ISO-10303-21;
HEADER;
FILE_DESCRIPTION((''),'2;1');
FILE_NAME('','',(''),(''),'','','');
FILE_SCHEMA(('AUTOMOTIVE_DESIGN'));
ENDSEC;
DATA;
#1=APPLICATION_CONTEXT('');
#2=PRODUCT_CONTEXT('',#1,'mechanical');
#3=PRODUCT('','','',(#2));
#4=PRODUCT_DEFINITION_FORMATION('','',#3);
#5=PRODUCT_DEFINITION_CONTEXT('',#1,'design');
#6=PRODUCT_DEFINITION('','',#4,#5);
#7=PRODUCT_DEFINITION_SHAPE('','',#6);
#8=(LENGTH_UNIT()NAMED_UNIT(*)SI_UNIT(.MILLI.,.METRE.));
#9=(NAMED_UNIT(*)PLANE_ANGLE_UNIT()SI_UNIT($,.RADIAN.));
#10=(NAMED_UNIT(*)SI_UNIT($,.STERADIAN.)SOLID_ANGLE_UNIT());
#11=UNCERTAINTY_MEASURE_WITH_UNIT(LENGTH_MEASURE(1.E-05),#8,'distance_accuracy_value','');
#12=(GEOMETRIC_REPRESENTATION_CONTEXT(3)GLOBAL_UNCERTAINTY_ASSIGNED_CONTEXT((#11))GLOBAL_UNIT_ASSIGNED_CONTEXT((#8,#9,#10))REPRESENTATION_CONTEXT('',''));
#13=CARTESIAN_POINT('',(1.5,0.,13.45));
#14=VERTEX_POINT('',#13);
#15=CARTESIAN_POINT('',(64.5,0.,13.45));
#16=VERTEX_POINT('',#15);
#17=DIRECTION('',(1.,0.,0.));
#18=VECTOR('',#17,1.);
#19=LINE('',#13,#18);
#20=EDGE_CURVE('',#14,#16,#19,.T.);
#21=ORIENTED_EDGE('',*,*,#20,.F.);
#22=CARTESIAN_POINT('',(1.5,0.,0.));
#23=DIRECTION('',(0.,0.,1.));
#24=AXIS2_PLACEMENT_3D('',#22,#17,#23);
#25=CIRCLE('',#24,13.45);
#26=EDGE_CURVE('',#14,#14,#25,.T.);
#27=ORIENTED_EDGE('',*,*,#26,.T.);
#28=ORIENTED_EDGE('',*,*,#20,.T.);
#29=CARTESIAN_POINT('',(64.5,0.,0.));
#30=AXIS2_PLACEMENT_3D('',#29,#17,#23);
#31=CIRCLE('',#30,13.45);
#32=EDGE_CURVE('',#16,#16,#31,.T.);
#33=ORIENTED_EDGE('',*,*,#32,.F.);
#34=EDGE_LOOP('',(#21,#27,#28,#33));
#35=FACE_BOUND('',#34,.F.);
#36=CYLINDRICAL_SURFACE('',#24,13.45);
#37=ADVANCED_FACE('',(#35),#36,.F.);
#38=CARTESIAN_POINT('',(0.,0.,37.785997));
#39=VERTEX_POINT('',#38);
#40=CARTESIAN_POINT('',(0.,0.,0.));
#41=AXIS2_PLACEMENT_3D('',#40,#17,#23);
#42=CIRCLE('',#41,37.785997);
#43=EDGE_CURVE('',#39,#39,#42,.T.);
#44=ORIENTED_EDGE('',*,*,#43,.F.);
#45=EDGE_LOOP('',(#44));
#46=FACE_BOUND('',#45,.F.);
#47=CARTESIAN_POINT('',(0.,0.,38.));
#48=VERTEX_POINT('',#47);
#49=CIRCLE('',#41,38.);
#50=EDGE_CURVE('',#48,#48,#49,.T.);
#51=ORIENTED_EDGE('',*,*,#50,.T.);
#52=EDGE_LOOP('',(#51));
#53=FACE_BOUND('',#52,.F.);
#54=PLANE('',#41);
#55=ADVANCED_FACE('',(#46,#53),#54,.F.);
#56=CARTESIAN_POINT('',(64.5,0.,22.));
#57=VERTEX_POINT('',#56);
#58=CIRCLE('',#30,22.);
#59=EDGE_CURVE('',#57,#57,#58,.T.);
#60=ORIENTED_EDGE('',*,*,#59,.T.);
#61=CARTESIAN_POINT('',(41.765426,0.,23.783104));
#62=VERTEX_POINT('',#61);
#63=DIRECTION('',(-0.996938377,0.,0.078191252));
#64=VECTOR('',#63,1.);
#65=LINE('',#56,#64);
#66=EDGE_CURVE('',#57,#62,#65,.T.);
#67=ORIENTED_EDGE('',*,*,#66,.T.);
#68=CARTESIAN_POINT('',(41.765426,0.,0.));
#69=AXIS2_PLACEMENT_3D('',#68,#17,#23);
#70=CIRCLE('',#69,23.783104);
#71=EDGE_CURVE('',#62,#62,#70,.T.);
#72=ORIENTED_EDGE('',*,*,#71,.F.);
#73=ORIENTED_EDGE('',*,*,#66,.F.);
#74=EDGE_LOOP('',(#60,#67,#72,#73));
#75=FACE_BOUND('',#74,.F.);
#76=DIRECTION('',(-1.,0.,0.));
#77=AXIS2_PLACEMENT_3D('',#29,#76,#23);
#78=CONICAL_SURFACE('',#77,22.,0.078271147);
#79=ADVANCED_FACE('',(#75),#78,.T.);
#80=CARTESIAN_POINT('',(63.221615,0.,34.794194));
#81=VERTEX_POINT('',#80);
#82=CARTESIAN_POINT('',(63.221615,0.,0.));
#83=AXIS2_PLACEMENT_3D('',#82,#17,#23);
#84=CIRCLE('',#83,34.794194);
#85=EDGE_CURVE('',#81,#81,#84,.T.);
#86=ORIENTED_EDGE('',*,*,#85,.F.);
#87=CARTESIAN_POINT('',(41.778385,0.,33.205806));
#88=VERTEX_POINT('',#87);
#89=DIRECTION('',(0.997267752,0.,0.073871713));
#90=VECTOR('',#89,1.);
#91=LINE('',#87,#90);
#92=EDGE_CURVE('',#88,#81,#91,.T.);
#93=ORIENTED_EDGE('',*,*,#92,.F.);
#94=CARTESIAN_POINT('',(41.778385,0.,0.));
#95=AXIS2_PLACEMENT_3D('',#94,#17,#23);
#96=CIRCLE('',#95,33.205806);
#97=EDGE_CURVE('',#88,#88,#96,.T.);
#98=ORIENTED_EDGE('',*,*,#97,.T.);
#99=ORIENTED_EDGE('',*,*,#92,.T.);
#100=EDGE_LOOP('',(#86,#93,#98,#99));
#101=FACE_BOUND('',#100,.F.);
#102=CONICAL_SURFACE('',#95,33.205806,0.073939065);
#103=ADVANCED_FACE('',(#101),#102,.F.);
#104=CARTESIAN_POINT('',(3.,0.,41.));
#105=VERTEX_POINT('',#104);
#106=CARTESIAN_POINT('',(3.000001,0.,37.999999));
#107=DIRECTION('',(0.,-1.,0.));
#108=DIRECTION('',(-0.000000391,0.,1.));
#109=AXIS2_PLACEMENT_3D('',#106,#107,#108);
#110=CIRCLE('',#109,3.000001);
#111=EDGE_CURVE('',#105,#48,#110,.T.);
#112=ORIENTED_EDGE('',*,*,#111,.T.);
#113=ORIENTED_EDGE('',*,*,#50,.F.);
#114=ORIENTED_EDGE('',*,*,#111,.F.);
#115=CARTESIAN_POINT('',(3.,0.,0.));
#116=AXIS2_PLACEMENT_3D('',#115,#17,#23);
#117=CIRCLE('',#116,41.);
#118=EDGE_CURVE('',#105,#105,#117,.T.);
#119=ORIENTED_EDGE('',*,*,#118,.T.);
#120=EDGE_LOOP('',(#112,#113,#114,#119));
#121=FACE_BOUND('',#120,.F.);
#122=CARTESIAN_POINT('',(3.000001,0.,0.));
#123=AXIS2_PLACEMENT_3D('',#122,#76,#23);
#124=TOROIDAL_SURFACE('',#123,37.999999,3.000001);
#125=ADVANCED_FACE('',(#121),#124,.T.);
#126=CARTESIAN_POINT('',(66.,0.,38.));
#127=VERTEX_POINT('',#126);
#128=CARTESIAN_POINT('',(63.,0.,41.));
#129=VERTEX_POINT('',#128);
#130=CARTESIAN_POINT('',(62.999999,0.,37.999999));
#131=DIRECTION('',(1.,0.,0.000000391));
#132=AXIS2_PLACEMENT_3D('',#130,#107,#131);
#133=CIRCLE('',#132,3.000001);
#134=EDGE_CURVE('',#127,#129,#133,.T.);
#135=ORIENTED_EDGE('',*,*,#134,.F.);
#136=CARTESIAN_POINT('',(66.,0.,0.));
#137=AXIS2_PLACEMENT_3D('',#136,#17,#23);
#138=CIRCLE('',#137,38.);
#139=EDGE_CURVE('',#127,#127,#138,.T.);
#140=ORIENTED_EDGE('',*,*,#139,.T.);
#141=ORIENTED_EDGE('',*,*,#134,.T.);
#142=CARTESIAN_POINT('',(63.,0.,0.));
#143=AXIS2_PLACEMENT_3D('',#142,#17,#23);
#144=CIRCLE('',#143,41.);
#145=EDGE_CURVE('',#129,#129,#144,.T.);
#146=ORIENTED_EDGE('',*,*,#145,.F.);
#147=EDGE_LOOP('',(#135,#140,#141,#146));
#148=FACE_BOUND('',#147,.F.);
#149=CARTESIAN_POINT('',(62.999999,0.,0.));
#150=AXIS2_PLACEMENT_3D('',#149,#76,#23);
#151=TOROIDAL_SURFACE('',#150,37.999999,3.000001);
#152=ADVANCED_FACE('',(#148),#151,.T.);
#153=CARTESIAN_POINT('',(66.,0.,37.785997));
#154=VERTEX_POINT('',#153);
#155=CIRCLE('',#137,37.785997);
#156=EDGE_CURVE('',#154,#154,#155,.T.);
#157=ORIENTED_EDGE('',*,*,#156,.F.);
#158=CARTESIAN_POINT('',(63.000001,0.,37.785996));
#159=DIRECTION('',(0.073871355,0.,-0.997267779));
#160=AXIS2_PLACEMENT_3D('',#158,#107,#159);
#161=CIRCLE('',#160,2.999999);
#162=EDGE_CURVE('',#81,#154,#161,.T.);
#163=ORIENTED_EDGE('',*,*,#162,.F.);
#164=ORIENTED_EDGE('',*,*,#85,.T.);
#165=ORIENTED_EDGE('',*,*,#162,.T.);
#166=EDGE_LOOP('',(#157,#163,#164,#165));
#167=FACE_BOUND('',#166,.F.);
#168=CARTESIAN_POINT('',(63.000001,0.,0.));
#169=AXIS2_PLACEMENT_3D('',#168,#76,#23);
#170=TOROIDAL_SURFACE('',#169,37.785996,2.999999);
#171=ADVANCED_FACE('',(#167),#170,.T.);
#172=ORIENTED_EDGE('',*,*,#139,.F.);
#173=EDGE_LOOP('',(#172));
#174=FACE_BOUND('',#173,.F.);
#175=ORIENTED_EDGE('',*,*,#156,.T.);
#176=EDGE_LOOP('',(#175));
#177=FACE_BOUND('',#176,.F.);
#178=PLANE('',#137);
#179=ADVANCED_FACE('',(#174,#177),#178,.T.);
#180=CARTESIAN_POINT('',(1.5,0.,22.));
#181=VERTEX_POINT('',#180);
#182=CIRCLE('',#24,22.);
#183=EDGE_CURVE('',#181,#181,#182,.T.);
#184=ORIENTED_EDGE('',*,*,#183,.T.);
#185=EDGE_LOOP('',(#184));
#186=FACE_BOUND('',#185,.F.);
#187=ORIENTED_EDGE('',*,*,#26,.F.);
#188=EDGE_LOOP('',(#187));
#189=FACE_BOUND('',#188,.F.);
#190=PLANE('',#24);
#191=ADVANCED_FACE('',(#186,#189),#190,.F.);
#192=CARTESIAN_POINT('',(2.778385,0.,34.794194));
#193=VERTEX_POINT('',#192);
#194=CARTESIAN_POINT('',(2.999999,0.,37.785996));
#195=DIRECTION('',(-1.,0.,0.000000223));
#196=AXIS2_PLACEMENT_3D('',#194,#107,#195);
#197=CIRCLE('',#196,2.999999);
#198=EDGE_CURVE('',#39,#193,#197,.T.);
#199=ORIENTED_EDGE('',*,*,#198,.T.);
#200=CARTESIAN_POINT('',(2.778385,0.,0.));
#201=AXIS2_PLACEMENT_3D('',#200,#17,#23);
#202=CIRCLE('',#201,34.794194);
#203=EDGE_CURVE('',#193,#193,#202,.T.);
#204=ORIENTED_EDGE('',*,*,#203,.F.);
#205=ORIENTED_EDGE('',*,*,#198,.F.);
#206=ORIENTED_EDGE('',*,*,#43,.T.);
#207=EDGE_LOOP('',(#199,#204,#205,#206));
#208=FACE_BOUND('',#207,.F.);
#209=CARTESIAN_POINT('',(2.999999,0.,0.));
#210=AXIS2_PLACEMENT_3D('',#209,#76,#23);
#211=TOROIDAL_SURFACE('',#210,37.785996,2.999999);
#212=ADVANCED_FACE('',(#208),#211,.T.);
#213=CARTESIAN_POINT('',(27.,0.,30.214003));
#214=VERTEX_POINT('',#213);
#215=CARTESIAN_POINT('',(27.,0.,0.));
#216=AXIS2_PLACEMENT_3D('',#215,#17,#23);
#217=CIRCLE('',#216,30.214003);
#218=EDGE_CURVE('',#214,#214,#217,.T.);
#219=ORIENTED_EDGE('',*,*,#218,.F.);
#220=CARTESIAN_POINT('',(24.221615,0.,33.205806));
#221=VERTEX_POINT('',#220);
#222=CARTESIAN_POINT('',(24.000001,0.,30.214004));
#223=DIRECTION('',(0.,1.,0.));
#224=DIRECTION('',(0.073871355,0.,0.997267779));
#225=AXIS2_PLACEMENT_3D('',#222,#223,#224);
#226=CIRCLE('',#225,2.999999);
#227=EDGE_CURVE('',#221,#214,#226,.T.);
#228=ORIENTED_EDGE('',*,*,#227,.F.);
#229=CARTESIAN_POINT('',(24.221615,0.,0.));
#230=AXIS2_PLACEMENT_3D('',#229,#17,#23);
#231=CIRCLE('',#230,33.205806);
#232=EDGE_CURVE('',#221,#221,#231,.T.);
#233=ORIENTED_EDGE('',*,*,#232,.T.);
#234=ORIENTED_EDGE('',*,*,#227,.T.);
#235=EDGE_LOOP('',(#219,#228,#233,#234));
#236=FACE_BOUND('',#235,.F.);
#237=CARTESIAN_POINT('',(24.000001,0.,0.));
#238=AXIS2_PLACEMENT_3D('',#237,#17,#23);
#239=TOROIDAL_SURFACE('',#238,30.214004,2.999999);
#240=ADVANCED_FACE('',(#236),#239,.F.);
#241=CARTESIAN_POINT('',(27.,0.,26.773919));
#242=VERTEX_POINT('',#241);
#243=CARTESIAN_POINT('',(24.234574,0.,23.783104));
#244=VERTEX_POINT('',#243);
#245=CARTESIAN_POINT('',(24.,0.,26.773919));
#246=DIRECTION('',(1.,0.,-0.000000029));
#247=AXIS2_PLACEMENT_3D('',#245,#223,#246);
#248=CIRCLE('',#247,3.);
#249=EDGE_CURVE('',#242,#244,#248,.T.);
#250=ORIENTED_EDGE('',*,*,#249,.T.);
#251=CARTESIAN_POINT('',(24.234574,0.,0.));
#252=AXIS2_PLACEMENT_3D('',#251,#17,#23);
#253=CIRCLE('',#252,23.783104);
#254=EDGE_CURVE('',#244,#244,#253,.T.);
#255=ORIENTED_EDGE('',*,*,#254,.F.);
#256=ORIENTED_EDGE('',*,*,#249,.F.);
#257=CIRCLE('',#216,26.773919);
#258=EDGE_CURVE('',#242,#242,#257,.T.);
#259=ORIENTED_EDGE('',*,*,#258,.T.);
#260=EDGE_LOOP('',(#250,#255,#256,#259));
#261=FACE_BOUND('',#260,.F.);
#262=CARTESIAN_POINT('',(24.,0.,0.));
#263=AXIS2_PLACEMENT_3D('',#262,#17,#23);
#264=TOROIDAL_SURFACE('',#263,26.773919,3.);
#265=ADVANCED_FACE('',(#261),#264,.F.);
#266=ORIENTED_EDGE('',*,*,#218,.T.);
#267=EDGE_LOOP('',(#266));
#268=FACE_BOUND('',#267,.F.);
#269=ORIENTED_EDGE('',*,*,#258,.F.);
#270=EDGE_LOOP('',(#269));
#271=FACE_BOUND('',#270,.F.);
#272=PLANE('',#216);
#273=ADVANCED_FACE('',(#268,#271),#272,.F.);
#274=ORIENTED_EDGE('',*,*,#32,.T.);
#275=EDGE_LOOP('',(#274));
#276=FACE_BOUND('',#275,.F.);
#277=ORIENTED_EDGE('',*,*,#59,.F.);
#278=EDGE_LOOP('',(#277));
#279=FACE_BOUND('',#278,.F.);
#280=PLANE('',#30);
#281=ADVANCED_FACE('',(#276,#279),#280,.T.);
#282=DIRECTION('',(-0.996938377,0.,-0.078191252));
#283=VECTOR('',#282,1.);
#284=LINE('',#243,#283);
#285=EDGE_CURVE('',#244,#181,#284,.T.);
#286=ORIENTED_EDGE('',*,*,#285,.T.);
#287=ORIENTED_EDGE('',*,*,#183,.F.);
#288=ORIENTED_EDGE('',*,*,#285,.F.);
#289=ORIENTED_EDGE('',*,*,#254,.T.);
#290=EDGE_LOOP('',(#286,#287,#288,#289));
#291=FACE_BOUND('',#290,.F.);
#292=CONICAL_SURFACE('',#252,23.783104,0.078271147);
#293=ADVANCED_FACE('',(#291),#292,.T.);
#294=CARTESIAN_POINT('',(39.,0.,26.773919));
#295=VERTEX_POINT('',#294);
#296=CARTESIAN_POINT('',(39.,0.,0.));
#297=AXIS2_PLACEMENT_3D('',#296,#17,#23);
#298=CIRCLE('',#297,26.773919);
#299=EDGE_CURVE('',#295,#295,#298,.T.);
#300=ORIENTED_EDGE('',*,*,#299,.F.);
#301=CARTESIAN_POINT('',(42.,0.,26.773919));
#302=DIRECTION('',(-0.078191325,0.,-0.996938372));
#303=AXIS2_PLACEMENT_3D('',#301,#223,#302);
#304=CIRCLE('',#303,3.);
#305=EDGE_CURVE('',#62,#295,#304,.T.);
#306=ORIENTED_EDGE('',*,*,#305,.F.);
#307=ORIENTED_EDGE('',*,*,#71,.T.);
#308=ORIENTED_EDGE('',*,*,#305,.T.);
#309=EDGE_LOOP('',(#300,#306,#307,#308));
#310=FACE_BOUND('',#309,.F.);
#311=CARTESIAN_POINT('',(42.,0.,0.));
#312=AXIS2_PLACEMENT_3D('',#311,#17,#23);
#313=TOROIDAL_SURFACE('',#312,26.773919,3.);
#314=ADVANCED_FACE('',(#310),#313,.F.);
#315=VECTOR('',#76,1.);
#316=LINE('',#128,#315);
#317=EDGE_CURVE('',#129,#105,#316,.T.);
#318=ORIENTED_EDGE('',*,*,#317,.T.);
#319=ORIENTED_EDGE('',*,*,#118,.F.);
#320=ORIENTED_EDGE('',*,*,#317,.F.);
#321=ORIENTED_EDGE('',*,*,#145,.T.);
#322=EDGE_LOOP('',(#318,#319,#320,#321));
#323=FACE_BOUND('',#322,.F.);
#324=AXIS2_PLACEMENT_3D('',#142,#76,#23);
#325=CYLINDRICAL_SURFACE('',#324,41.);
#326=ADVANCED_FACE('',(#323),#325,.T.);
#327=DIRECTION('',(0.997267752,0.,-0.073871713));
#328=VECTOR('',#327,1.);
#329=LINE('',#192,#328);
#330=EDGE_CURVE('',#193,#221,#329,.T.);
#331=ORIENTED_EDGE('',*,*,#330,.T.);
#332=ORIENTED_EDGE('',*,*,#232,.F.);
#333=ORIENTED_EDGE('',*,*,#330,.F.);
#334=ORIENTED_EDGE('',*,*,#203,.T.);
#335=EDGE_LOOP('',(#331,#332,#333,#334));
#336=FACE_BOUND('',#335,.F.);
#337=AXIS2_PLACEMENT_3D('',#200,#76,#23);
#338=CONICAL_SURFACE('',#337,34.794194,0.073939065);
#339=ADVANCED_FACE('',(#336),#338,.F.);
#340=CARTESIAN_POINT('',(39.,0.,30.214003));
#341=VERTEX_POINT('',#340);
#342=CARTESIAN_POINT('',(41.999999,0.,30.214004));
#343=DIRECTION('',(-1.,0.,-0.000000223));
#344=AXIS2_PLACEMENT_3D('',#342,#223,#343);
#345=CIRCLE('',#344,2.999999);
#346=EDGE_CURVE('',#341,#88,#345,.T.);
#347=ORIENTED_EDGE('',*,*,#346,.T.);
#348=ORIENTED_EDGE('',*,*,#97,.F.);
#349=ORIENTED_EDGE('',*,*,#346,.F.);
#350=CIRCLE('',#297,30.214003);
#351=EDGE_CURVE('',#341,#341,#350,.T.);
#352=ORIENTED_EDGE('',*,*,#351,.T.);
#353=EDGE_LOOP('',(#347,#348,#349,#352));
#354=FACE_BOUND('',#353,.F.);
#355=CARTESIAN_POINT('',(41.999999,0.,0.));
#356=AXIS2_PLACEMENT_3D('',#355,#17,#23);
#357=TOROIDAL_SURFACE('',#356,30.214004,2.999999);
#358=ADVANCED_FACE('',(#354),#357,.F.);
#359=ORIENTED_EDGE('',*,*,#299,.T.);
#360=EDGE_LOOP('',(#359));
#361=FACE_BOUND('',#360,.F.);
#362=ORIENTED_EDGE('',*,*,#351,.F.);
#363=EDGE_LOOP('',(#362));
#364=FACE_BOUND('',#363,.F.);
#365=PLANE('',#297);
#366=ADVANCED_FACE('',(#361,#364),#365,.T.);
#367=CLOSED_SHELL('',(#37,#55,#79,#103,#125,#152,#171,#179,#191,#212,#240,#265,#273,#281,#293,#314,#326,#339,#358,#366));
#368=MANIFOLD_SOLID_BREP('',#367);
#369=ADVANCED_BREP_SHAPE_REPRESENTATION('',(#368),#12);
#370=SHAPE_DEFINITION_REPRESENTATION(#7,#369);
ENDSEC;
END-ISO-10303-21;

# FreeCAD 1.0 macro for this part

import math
import FreeCAD as App
import Part
import Sketcher
from FreeCAD import Vector

doc = App.newDocument("Part")
body = doc.addObject("PartDesign::Body", "Body")

# Sketch on XZ plane
sketch1 = body.newObject("Sketcher::SketchObject", "Sketch")
sketch1.AttachmentSupport = (doc.getObject("XZ_Plane"), [""])
sketch1.MapMode = "FlatFace"
sketch1.addGeometry(Part.LineSegment(Vector(1.5, 13.45, 0), Vector(64.5, 13.45, 0)), False)
sketch1.addGeometry(Part.LineSegment(Vector(64.5, 13.45, 0), Vector(64.5, 22, 0)), False)
sketch1.addGeometry(Part.LineSegment(Vector(64.5, 22, 0), Vector(41.77, 23.78, 0)), False)
sketch1.addGeometry(Part.ArcOfCircle(Part.Circle(Vector(42, 26.77, 0), Vector(0, 0, 1), 3), math.radians(-180), math.radians(-94)), False)
sketch1.addGeometry(Part.LineSegment(Vector(39, 26.77, 0), Vector(39, 30.21, 0)), False)
sketch1.addGeometry(Part.ArcOfCircle(Part.Circle(Vector(42, 30.21, 0), Vector(0, 0, 1), 3), math.radians(94), math.radians(180)), False)
sketch1.addGeometry(Part.LineSegment(Vector(41.78, 33.21, 0), Vector(63.22, 34.79, 0)), False)
sketch1.addGeometry(Part.ArcOfCircle(Part.Circle(Vector(63, 37.79, 0), Vector(0, 0, 1), 3), math.radians(-86), math.radians(0)), False)
sketch1.addGeometry(Part.LineSegment(Vector(66, 37.79, 0), Vector(66, 38, 0)), False)
sketch1.addGeometry(Part.ArcOfCircle(Part.Circle(Vector(63, 38, 0), Vector(0, 0, 1), 3), math.radians(0), math.radians(90)), False)
sketch1.addGeometry(Part.LineSegment(Vector(63, 41, 0), Vector(3, 41, 0)), False)
sketch1.addGeometry(Part.ArcOfCircle(Part.Circle(Vector(3, 38, 0), Vector(0, 0, 1), 3), math.radians(90), math.radians(180)), False)
sketch1.addGeometry(Part.LineSegment(Vector(0, 38, 0), Vector(0, 37.79, 0)), False)
sketch1.addGeometry(Part.ArcOfCircle(Part.Circle(Vector(3, 37.79, 0), Vector(0, 0, 1), 3), math.radians(180), math.radians(266)), False)
sketch1.addGeometry(Part.LineSegment(Vector(2.78, 34.79, 0), Vector(24.22, 33.21, 0)), False)
sketch1.addGeometry(Part.ArcOfCircle(Part.Circle(Vector(24, 30.21, 0), Vector(0, 0, 1), 3), math.radians(0), math.radians(86)), False)
sketch1.addGeometry(Part.LineSegment(Vector(27, 30.21, 0), Vector(27, 26.77, 0)), False)
sketch1.addGeometry(Part.ArcOfCircle(Part.Circle(Vector(24, 26.77, 0), Vector(0, 0, 1), 3), math.radians(-86), math.radians(0)), False)
sketch1.addGeometry(Part.LineSegment(Vector(24.23, 23.78, 0), Vector(1.5, 22, 0)), False)
sketch1.addGeometry(Part.LineSegment(Vector(1.5, 22, 0), Vector(1.5, 13.45, 0)), False)
sketch1.addConstraint(Sketcher.Constraint("Coincident", 0, 2, 1, 1))
sketch1.addConstraint(Sketcher.Constraint("Coincident", 1, 2, 2, 1))
sketch1.addConstraint(Sketcher.Constraint("Tangent", 2, 2, 3, 2))
sketch1.addConstraint(Sketcher.Constraint("Tangent", 3, 1, 4, 1))
sketch1.addConstraint(Sketcher.Constraint("Tangent", 4, 2, 5, 2))
sketch1.addConstraint(Sketcher.Constraint("Tangent", 5, 1, 6, 1))
sketch1.addConstraint(Sketcher.Constraint("Tangent", 6, 2, 7, 1))
sketch1.addConstraint(Sketcher.Constraint("Tangent", 7, 2, 8, 1))
sketch1.addConstraint(Sketcher.Constraint("Tangent", 8, 2, 9, 1))
sketch1.addConstraint(Sketcher.Constraint("Tangent", 9, 2, 10, 1))
sketch1.addConstraint(Sketcher.Constraint("Tangent", 10, 2, 11, 1))
sketch1.addConstraint(Sketcher.Constraint("Tangent", 11, 2, 12, 1))
sketch1.addConstraint(Sketcher.Constraint("Tangent", 12, 2, 13, 1))
sketch1.addConstraint(Sketcher.Constraint("Tangent", 13, 2, 14, 1))
sketch1.addConstraint(Sketcher.Constraint("Tangent", 14, 2, 15, 2))
sketch1.addConstraint(Sketcher.Constraint("Tangent", 15, 1, 16, 1))
sketch1.addConstraint(Sketcher.Constraint("Tangent", 16, 2, 17, 2))
sketch1.addConstraint(Sketcher.Constraint("Tangent", 17, 1, 18, 1))
sketch1.addConstraint(Sketcher.Constraint("Coincident", 18, 2, 19, 1))
sketch1.addConstraint(Sketcher.Constraint("Coincident", 19, 2, 0, 1))
sketch1.addConstraint(Sketcher.Constraint("Horizontal", 0))
sketch1.addConstraint(Sketcher.Constraint("Vertical", 1))
sketch1.addConstraint(Sketcher.Constraint("Vertical", 4))
sketch1.addConstraint(Sketcher.Constraint("Vertical", 8))
sketch1.addConstraint(Sketcher.Constraint("Horizontal", 10))
sketch1.addConstraint(Sketcher.Constraint("Vertical", 12))
sketch1.addConstraint(Sketcher.Constraint("Vertical", 16))
sketch1.addConstraint(Sketcher.Constraint("Vertical", 19))
sketch1.addConstraint(Sketcher.Constraint("Equal", 3, 5))
sketch1.addConstraint(Sketcher.Constraint("Equal", 5, 7))
sketch1.addConstraint(Sketcher.Constraint("Equal", 3, 9))
sketch1.addConstraint(Sketcher.Constraint("Equal", 9, 11))
sketch1.addConstraint(Sketcher.Constraint("Equal", 7, 13))
sketch1.addConstraint(Sketcher.Constraint("Equal", 13, 15))
sketch1.addConstraint(Sketcher.Constraint("Equal", 15, 17))
sketch1.addConstraint(Sketcher.Constraint("PointOnObject", 11, 2, -2))
sketch1.addConstraint(Sketcher.Constraint("Horizontal", 7, 3, 13, 3))
sketch1.addConstraint(Sketcher.Constraint("Horizontal", 5, 3, 15, 3))
sketch1.addConstraint(Sketcher.Constraint("Horizontal", 3, 3, 17, 3))
sketch1.addConstraint(Sketcher.Constraint("Horizontal", 2, 2, 17, 1))
sketch1.addConstraint(Sketcher.Constraint("Horizontal", 1, 2, 18, 2))
sketch1.addConstraint(Sketcher.Constraint("Equal", 6, 14))
sketch1.addConstraint(Sketcher.Constraint("Radius", 3, 3.0))
sketch1.addConstraint(Sketcher.Constraint("DistanceX", 0, 1, 0, 2, 63.0))
sketch1.addConstraint(Sketcher.Constraint("DistanceX", 10, 2, 10, 1, 60.0))
sketch1.addConstraint(Sketcher.Constraint("DistanceX", -1, 1, 3, 3, 42.0))
sketch1.addConstraint(Sketcher.Constraint("DistanceY", -1, 1, 9, 3, 37.999999))
sketch1.addConstraint(Sketcher.Constraint("DistanceY", -1, 1, 1, 2, 22.0))
sketch1.addConstraint(Sketcher.Constraint("DistanceY", 1, 1, 1, 2, 8.55))
sketch1.addConstraint(Sketcher.Constraint("DistanceY", 7, 2, 9, 3, 0.214002))
sketch1.addConstraint(Sketcher.Constraint("DistanceY", 2, 2, 5, 3, 6.4309))
sketch1.addConstraint(Sketcher.Constraint("Distance", 6, 21.501979))
revolution = body.newObject("PartDesign::Revolution", "Revolution")
revolution.Profile = sketch1
revolution.ReferenceAxis = (sketch1, ["H_Axis"])
revolution.Angle = 360

doc.recompute()
